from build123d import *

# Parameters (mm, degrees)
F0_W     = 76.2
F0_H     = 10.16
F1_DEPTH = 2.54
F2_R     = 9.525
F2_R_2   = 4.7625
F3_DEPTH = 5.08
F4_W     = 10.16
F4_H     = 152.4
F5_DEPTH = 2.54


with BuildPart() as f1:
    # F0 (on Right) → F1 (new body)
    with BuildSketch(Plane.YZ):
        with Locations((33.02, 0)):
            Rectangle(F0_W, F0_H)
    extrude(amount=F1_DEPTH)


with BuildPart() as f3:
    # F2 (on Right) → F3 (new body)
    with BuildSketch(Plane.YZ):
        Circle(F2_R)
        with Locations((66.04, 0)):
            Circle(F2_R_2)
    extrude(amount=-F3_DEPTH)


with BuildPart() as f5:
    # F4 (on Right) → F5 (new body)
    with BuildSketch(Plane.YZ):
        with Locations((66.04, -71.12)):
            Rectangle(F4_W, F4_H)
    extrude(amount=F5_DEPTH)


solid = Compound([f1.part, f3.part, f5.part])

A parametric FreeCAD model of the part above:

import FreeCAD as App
import Part
import Sketcher
Q = App.Units.Quantity


def add_polygon(sketch, points):
    """Adds a closed chain of lines whose ends are joined by coincident constraints."""
    first, n = sketch.GeometryCount, len(points)
    for a, b in zip(points, points[1:] + points[:1]):
        sketch.addGeometry(Part.LineSegment(App.Vector(*a, 0), App.Vector(*b, 0)), False)
    for i in range(n):
        sketch.addConstraint(Sketcher.Constraint("Coincident", first + i, 2, first + (i + 1) % n, 1))

doc = App.newDocument("Part")
params = doc.addObject("Spreadsheet::Sheet", "Params")
for row, (alias, value) in enumerate([
    ("sketch1_width", "3 in"),
    ("sketch1_height", "0.4 in"),
    ("pad1_length", "0.1 in"),
    ("sketch2_diameter", "0.75 in"),
    ("sketch2_diameter2", "0.375 in"),
    ("pad2_length", "0.2 in"),
    ("sketch3_height", "6 in"),
    ("sketch3_width", "0.4 in"),
    ("pad3_length", "0.1 in"),
], start=1):
    params.set(f"A{row}", alias)
    params.set(f"B{row}", "=" + value)
    params.setAlias(f"B{row}", alias)

body = doc.addObject("PartDesign::Body", "Body")

sketch1 = body.newObject("Sketcher::SketchObject", "Sketch")
sketch1.AttachmentSupport = (doc.getObject("YZ_Plane"), [""])
sketch1.MapMode = "FlatFace"
add_polygon(sketch1, [(-5.08, 5.08), (-5.08, -5.08), (71.12, -5.08), (71.12, 5.08)])
sketch1.addConstraint(Sketcher.Constraint("Vertical", 0))
sketch1.addConstraint(Sketcher.Constraint("Horizontal", 1))
sketch1.addConstraint(Sketcher.Constraint("Vertical", 2))
sketch1.addConstraint(Sketcher.Constraint("Horizontal", 3))
sketch1.addConstraint(Sketcher.Constraint("DistanceX", 1, 1, 1, 2, Q("3 in")))
sketch1.addConstraint(Sketcher.Constraint("DistanceY", 0, 2, 0, 1, Q("0.4 in")))
sketch1.addConstraint(Sketcher.Constraint("DistanceX", 0, 2, -1, 1, Q("0.2 in")))
sketch1.addConstraint(Sketcher.Constraint("DistanceY", 0, 2, -1, 1, Q("0.2 in")))
sketch1.setExpression("Constraints[8]", "Params.sketch1_width")
sketch1.setExpression("Constraints[9]", "Params.sketch1_height")
pad1 = body.newObject("PartDesign::Pad", "Pad")
pad1.Profile = sketch1
pad1.setExpression("Length", "Params.pad1_length")
body2 = doc.addObject("PartDesign::Body", "Body001")
body2.AllowCompound = True

sketch2 = body2.newObject("Sketcher::SketchObject", "Sketch001")
sketch2.AttachmentSupport = (doc.getObject("YZ_Plane001"), [""])
sketch2.MapMode = "FlatFace"
sketch2.addGeometry(Part.Circle(App.Vector(0, 0, 0), App.Vector(0, 0, 1), 9.525), False)
sketch2.addGeometry(Part.Circle(App.Vector(66.04, 0, 0), App.Vector(0, 0, 1), 4.7625), False)
sketch2.addConstraint(Sketcher.Constraint("Coincident", 0, 3, -1, 1))
sketch2.addConstraint(Sketcher.Constraint("PointOnObject", 1, 3, -1))
sketch2.addConstraint(Sketcher.Constraint("Diameter", 0, Q("0.75 in")))
sketch2.addConstraint(Sketcher.Constraint("Diameter", 1, Q("0.375 in")))
sketch2.addConstraint(Sketcher.Constraint("DistanceX", -1, 1, 1, 3, Q("2.6 in")))
sketch2.setExpression("Constraints[2]", "Params.sketch2_diameter")
sketch2.setExpression("Constraints[3]", "Params.sketch2_diameter2")
pad2 = body2.newObject("PartDesign::Pad", "Pad001")
pad2.Profile = sketch2
pad2.setExpression("Length", "Params.pad2_length")
pad2.Reversed = True
body3 = doc.addObject("PartDesign::Body", "Body002")

sketch3 = body3.newObject("Sketcher::SketchObject", "Sketch002")
sketch3.AttachmentSupport = (doc.getObject("YZ_Plane002"), [""])
sketch3.MapMode = "FlatFace"
add_polygon(sketch3, [(60.96, 5.08), (60.96, -147.32), (71.12, -147.32), (71.12, 5.08)])
sketch3.addConstraint(Sketcher.Constraint("Vertical", 0))
sketch3.addConstraint(Sketcher.Constraint("Horizontal", 1))
sketch3.addConstraint(Sketcher.Constraint("Vertical", 2))
sketch3.addConstraint(Sketcher.Constraint("Horizontal", 3))
sketch3.addConstraint(Sketcher.Constraint("DistanceY", 0, 2, 0, 1, Q("6 in")))
sketch3.addConstraint(Sketcher.Constraint("DistanceX", 1, 1, 1, 2, Q("0.4 in")))
sketch3.addConstraint(Sketcher.Constraint("DistanceX", -1, 1, 0, 2, Q("2.4 in")))
sketch3.addConstraint(Sketcher.Constraint("DistanceY", 0, 2, -1, 1, Q("5.8 in")))
sketch3.setExpression("Constraints[8]", "Params.sketch3_height")
sketch3.setExpression("Constraints[9]", "Params.sketch3_width")
pad3 = body3.newObject("PartDesign::Pad", "Pad002")
pad3.Profile = sketch3
pad3.setExpression("Length", "Params.pad3_length")

doc.recompute()
